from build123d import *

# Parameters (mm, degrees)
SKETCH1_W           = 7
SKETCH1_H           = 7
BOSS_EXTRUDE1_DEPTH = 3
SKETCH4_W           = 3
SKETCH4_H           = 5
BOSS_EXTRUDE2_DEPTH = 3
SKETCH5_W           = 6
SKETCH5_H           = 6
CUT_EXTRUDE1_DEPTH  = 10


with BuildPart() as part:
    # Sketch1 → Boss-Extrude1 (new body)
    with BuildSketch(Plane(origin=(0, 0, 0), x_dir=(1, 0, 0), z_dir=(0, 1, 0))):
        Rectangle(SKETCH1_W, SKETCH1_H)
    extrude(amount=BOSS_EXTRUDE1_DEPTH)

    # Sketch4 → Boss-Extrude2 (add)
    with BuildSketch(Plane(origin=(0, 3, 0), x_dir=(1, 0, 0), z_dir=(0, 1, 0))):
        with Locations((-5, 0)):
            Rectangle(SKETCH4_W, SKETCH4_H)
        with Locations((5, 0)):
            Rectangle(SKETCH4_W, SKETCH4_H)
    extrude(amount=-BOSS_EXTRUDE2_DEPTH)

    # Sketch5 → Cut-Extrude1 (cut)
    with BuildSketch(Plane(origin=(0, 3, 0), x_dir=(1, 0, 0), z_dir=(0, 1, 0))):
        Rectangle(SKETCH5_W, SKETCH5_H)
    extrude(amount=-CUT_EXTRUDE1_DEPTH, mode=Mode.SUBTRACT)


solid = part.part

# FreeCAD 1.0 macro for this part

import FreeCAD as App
import Part
import Sketcher


def add_polygon(sketch, points):
    """Adds a closed chain of lines whose ends are joined by coincident constraints."""
    first, n = sketch.GeometryCount, len(points)
    for a, b in zip(points, points[1:] + points[:1]):
        sketch.addGeometry(Part.LineSegment(App.Vector(*a, 0), App.Vector(*b, 0)), False)
    for i in range(n):
        sketch.addConstraint(Sketcher.Constraint("Coincident", first + i, 2, first + (i + 1) % n, 1))

doc = App.newDocument("Part")
body = doc.addObject("PartDesign::Body", "Body")

# Sketch on XZ plane
sketch1 = body.newObject("Sketcher::SketchObject", "Sketch")
sketch1.AttachmentSupport = (doc.getObject("XZ_Plane"), [""])
sketch1.MapMode = "FlatFace"
add_polygon(sketch1, [(-4, -4), (-4, 4), (4, 4), (4, -4)])  # lines 0-3
sketch1.addConstraint(Sketcher.Constraint("Vertical", 0))
sketch1.addConstraint(Sketcher.Constraint("Horizontal", 1))
sketch1.addConstraint(Sketcher.Constraint("Vertical", 2))
sketch1.addConstraint(Sketcher.Constraint("Horizontal", 3))
sketch1.addConstraint(Sketcher.Constraint("Symmetric", 0, 2, 2, 2, -1, 1))
sketch1.addConstraint(Sketcher.Constraint("Equal", 3, 0))
sketch1.addConstraint(Sketcher.Constraint("DistanceX", 1, 1, 1, 2, 7.0))
pad1 = body.newObject("PartDesign::Pad", "Pad")
pad1.Profile = sketch1
pad1.Length = 3
pad1.Reversed = True

# Sketch on XZ plane
sketch2 = body.newObject("Sketcher::SketchObject", "Sketch001")
sketch2.AttachmentSupport = (doc.getObject("XZ_Plane"), [""])
sketch2.MapMode = "FlatFace"
sketch2.AttachmentOffset = App.Placement(App.Vector(0, 0, -3), App.Rotation())
add_polygon(sketch2, [(-6.5, -2.5), (-6.5, 2.5), (-3.5, 2.5), (-3.5, -2.5)])  # lines 0-3
add_polygon(sketch2, [(3.5, -2.5), (3.5, 2.5), (6.5, 2.5), (6.5, -2.5)])  # lines 4-7
sketch2.addConstraint(Sketcher.Constraint("Vertical", 0))
sketch2.addConstraint(Sketcher.Constraint("Horizontal", 1))
sketch2.addConstraint(Sketcher.Constraint("Vertical", 2))
sketch2.addConstraint(Sketcher.Constraint("Horizontal", 3))
sketch2.addConstraint(Sketcher.Constraint("Vertical", 4))
sketch2.addConstraint(Sketcher.Constraint("Horizontal", 5))
sketch2.addConstraint(Sketcher.Constraint("Vertical", 6))
sketch2.addConstraint(Sketcher.Constraint("Horizontal", 7))
sketch2.addConstraint(Sketcher.Constraint("Symmetric", 2, 2, 4, 2, -1, 1))
sketch2.addConstraint(Sketcher.Constraint("Symmetric", 0, 2, 6, 2, -1, 1))
sketch2.addConstraint(Sketcher.Constraint("Horizontal", 1, 2, 4, 2))
sketch2.addConstraint(Sketcher.Constraint("DistanceX", 1, 1, 1, 2, 3.0))
sketch2.addConstraint(Sketcher.Constraint("DistanceY", 0, 1, 0, 2, 5.0))
sketch2.addConstraint(Sketcher.Constraint("DistanceX", 1, 2, 4, 2, 7.0))
pad2 = body.newObject("PartDesign::Pad", "Pad001")
pad2.Profile = sketch2
pad2.Length = 3

# Sketch on XZ plane
sketch3 = body.newObject("Sketcher::SketchObject", "Sketch002")
sketch3.AttachmentSupport = (doc.getObject("XZ_Plane"), [""])
sketch3.MapMode = "FlatFace"
sketch3.AttachmentOffset = App.Placement(App.Vector(0, 0, -3), App.Rotation())
add_polygon(sketch3, [(-3, -3), (-3, 3), (3, 3), (3, -3)])  # lines 0-3
sketch3.addConstraint(Sketcher.Constraint("Vertical", 0))
sketch3.addConstraint(Sketcher.Constraint("Horizontal", 1))
sketch3.addConstraint(Sketcher.Constraint("Vertical", 2))
sketch3.addConstraint(Sketcher.Constraint("Horizontal", 3))
sketch3.addConstraint(Sketcher.Constraint("Symmetric", 0, 2, 2, 2, -1, 1))
sketch3.addConstraint(Sketcher.Constraint("Equal", 3, 0))
sketch3.addConstraint(Sketcher.Constraint("DistanceX", 1, 1, 1, 2, 6.0))
pocket1 = body.newObject("PartDesign::Pocket", "Pocket")
pocket1.Profile = sketch3
pocket1.Length = 10
pocket1.Reversed = True

doc.recompute()
